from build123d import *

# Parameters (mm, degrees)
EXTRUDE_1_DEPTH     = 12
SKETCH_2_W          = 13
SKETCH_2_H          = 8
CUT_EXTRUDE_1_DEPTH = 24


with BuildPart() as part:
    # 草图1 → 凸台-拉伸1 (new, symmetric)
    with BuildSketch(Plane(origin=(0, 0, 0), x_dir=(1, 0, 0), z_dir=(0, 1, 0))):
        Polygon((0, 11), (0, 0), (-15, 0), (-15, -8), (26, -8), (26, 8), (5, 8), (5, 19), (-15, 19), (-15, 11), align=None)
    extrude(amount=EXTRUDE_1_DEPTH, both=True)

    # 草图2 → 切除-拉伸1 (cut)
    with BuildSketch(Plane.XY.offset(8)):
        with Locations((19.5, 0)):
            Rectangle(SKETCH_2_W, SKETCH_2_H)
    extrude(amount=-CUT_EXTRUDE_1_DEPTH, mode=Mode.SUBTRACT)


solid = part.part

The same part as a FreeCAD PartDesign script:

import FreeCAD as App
import Part
import Sketcher

V = App.Vector


def add_polygon(sketch, points):
    """Adds a closed chain of lines whose ends are joined by coincident constraints."""
    first, n = sketch.GeometryCount, len(points)
    for a, b in zip(points, points[1:] + points[:1]):
        sketch.addGeometry(Part.LineSegment(App.Vector(*a, 0), App.Vector(*b, 0)), False)
    for i in range(n):
        sketch.addConstraint(Sketcher.Constraint("Coincident", first + i, 2, first + (i + 1) % n, 1))

doc = App.newDocument("Part")
body = doc.addObject("PartDesign::Body", "Body")

sketch1 = body.newObject("Sketcher::SketchObject", "Sketch")
sketch1.AttachmentSupport = (doc.getObject("XZ_Plane"), [""])
sketch1.MapMode = "FlatFace"
add_polygon(sketch1, [(0, -11), (0, 0), (-15, 0), (-15, 8), (26, 8), (26, -8), (5, -8), (5, -19), (-15, -19), (-15, -11)])
sketch1.addConstraint([
    Sketcher.Constraint("Vertical", 0),
    Sketcher.Constraint("Horizontal", 1),
    Sketcher.Constraint("Vertical", 2),
    Sketcher.Constraint("Horizontal", 3),
    Sketcher.Constraint("Vertical", 4),
    Sketcher.Constraint("Horizontal", 5),
    Sketcher.Constraint("Vertical", 6),
    Sketcher.Constraint("Horizontal", 7),
    Sketcher.Constraint("Vertical", 8),
    Sketcher.Constraint("Horizontal", 9),
    Sketcher.Constraint("Coincident", 0, 2, -1, 1),
    Sketcher.Constraint("Vertical", 2, 2, 7, 2),
    Sketcher.Constraint("Equal", 0, 6),
    Sketcher.Constraint("Equal", 2, 8),
    Sketcher.Constraint("DistanceX", 1, 2, 1, 1, 15.0),
    Sketcher.Constraint("DistanceX", 3, 1, 3, 2, 41.0),
    Sketcher.Constraint("DistanceX", 5, 2, 5, 1, 21.0),
    Sketcher.Constraint("DistanceY", 0, 1, 0, 2, 11.0),
    Sketcher.Constraint("DistanceY", 2, 1, 2, 2, 8.0),
])
pad1 = body.newObject("PartDesign::Pad", "Pad")
pad1.Profile = sketch1
pad1.Length = 24
pad1.Midplane = True

sketch2 = body.newObject("Sketcher::SketchObject", "Sketch001")
sketch2.AttachmentSupport = (doc.getObject("XY_Plane"), [""])
sketch2.MapMode = "FlatFace"
sketch2.AttachmentOffset = App.Placement(V(0, 0, 8), App.Rotation())
add_polygon(sketch2, [(13, 4), (13, -4), (26, -4), (26, 4)])
sketch2.addConstraint([
    Sketcher.Constraint("Vertical", 0),
    Sketcher.Constraint("Horizontal", 1),
    Sketcher.Constraint("Vertical", 2),
    Sketcher.Constraint("Horizontal", 3),
    Sketcher.Constraint("DistanceX", 1, 1, 1, 2, 13.0),
    Sketcher.Constraint("DistanceY", 0, 2, 0, 1, 8.0),
    Sketcher.Constraint("DistanceX", -1, 1, 0, 2, 13.0),
    Sketcher.Constraint("DistanceY", 0, 2, -1, 1, 4.0),
])
pocket1 = body.newObject("PartDesign::Pocket", "Pocket")
pocket1.Profile = sketch2
pocket1.Length = 24

doc.recompute()
